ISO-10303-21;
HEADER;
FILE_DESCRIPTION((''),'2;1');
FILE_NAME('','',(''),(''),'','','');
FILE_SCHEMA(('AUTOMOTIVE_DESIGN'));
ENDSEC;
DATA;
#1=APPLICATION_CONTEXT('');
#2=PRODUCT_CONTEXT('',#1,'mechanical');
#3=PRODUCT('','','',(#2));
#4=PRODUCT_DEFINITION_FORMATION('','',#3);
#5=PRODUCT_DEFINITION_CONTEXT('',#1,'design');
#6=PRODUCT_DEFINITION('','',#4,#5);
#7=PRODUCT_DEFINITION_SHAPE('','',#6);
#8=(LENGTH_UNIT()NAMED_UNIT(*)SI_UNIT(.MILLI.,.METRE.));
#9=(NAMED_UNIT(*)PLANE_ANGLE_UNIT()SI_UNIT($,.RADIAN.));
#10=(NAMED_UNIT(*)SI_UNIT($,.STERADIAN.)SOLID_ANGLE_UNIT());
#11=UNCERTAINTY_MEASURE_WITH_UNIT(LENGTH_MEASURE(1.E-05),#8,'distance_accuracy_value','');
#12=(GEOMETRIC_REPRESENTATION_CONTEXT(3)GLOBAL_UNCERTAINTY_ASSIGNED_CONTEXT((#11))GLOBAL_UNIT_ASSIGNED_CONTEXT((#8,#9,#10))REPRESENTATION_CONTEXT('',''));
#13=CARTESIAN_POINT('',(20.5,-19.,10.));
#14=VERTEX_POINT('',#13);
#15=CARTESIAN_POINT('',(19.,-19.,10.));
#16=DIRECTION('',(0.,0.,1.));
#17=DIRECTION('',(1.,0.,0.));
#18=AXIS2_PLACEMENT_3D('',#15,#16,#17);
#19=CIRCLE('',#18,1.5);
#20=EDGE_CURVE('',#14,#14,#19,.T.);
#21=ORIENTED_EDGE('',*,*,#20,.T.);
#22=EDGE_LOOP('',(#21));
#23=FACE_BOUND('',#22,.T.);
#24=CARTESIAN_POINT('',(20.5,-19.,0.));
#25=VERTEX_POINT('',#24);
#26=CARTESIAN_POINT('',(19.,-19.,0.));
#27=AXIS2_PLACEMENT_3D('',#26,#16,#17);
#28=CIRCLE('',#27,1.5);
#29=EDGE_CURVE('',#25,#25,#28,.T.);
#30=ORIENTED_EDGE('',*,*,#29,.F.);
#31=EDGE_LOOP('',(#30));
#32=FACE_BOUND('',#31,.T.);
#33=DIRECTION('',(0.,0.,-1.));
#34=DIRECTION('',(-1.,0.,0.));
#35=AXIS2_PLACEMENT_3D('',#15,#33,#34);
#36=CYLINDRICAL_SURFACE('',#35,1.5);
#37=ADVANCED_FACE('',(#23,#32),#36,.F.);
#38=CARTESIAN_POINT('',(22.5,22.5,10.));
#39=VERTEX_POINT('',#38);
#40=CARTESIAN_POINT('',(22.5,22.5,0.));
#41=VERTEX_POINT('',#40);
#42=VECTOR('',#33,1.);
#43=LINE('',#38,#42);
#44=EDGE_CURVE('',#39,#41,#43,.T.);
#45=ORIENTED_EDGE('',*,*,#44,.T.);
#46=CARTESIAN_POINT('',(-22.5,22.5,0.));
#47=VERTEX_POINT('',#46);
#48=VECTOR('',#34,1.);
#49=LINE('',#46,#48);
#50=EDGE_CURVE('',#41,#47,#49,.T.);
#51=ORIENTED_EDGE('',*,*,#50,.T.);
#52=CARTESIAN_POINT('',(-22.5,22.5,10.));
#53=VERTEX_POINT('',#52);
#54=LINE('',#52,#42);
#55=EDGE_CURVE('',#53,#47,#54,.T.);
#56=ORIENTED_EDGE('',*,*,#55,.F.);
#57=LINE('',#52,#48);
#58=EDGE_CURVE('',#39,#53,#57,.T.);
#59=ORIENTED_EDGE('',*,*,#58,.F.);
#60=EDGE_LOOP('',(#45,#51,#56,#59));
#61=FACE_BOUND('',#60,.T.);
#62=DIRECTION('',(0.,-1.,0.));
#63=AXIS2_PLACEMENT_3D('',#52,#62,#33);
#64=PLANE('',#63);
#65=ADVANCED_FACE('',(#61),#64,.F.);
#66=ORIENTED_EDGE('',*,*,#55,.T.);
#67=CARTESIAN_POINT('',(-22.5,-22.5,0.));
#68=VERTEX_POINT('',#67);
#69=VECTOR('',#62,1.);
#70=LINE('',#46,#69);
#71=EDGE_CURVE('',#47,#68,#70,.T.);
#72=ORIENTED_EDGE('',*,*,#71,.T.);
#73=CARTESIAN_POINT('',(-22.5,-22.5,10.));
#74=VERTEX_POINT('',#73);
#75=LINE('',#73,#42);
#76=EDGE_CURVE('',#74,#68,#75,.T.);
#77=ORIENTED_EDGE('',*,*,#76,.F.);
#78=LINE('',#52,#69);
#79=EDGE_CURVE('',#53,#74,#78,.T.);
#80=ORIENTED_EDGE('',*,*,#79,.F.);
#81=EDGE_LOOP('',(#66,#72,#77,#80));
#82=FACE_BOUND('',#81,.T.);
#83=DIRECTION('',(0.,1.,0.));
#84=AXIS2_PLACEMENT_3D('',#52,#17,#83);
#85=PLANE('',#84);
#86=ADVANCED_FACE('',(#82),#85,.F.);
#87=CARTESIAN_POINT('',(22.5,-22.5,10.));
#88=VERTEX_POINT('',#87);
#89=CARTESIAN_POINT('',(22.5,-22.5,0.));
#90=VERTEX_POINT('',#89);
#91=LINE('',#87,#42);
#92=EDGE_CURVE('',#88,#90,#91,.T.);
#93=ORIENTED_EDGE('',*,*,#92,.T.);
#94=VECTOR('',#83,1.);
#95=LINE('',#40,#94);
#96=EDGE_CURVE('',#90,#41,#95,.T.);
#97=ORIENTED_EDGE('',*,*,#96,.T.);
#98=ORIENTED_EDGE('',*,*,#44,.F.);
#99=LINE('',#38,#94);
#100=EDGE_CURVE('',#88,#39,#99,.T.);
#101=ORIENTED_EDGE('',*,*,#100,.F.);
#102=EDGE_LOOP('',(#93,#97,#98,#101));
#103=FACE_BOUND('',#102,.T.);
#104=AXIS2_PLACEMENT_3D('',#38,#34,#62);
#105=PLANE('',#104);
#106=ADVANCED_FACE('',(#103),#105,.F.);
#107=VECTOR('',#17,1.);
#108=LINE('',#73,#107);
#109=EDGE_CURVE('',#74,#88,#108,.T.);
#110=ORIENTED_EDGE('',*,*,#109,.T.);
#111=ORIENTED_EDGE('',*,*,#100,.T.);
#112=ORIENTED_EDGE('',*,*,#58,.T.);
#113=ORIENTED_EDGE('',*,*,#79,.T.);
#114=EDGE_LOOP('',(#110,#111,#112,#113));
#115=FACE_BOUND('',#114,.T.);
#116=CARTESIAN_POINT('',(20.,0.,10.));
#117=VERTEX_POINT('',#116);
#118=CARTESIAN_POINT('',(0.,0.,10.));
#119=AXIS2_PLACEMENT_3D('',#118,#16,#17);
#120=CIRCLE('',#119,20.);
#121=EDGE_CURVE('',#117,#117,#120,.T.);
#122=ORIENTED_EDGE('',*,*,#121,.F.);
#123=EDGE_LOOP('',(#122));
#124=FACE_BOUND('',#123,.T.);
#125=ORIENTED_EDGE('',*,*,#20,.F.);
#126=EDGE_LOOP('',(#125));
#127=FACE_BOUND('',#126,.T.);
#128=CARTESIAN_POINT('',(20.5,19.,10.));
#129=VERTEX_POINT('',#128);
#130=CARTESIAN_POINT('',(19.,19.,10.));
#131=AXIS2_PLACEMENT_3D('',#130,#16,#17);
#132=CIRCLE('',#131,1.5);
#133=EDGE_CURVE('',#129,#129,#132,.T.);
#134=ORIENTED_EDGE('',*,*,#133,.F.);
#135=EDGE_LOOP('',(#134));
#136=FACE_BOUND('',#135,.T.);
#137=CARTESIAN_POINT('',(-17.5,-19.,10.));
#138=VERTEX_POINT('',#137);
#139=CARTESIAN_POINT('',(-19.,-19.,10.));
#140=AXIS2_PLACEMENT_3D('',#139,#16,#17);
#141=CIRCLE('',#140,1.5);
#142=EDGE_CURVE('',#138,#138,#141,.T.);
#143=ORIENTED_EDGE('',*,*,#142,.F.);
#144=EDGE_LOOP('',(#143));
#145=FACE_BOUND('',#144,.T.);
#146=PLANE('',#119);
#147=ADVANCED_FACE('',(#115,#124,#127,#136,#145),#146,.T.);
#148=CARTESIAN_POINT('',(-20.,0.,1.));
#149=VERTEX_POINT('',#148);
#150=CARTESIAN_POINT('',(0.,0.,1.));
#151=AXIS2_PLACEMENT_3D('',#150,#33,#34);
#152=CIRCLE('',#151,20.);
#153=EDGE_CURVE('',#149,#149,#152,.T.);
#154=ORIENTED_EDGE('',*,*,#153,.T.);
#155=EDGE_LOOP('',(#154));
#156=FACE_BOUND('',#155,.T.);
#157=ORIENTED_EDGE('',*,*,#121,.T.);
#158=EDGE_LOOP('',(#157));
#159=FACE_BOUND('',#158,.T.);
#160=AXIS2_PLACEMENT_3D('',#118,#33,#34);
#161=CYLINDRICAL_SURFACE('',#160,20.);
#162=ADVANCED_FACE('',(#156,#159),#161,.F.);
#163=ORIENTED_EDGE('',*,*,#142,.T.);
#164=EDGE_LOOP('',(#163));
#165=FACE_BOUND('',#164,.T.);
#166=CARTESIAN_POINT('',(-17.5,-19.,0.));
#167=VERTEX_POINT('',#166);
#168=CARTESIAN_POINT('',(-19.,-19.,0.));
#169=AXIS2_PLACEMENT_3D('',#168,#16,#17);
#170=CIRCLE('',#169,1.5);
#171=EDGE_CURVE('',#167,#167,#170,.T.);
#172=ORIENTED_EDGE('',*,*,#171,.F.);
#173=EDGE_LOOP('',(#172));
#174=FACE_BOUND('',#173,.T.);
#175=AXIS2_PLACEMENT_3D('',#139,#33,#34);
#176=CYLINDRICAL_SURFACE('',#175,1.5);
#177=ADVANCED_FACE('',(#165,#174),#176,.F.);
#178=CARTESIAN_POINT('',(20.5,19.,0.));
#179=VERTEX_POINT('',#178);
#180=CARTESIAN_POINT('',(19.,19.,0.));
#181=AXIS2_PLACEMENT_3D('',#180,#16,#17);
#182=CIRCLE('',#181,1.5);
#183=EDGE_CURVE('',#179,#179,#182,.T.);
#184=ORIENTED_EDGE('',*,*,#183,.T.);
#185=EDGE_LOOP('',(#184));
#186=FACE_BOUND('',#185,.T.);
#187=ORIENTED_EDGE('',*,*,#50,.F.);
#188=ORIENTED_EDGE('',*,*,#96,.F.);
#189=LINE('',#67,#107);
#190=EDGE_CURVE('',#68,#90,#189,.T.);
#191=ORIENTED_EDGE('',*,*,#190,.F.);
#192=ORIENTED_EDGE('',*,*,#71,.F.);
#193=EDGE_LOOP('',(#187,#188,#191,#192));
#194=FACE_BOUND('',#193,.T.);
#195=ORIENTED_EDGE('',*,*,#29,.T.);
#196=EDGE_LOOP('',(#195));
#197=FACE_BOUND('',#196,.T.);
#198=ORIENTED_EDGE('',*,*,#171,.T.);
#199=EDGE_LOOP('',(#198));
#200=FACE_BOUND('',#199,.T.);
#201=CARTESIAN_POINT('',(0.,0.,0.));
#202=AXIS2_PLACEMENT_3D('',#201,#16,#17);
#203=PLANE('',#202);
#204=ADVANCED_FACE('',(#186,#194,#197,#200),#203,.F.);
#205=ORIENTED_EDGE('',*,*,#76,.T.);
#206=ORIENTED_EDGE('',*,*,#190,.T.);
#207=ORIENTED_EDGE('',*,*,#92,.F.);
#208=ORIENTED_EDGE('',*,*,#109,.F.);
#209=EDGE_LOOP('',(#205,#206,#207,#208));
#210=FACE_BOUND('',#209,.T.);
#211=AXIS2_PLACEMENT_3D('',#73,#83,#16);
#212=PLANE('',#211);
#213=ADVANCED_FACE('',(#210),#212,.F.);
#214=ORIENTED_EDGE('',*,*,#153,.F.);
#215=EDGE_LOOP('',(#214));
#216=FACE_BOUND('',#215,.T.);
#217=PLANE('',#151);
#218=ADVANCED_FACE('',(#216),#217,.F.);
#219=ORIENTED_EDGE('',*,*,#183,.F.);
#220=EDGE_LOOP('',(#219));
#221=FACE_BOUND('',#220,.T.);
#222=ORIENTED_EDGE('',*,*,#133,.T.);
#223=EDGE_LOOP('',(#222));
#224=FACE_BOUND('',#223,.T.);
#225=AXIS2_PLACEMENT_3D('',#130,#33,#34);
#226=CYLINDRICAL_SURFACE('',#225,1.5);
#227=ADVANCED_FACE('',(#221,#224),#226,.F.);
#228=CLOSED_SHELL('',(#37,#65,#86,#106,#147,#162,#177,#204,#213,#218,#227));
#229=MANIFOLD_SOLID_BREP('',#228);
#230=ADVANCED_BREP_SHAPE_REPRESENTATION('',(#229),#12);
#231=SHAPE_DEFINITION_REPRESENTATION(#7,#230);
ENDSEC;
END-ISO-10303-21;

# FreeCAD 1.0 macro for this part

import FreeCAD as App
import Part
import Sketcher

V = App.Vector
Q = App.Units.Quantity

doc = App.newDocument("Part")
params = doc.addObject("Spreadsheet::Sheet", "Params")
for row, (alias, value) in enumerate([
    ("sketch1_diameter", "3 mm"),
    ("sketch1_diameter2", "40 mm"),
    ("sketch1_width", "45 mm"),
    ("pad1_length", "10 mm"),
    ("sketch2_diameter", "40 mm"),
    ("pad2_length", "1 mm"),
], start=1):
    params.set(f"A{row}", alias)
    params.set(f"B{row}", "=" + value)
    params.setAlias(f"B{row}", alias)

body = doc.addObject("PartDesign::Body", "Body")

# Sketch on XY plane
sketch1 = body.newObject("Sketcher::SketchObject", "Sketch")
sketch1.AttachmentSupport = (doc.getObject("XY_Plane"), [""])
sketch1.MapMode = "FlatFace"
sketch1.addGeometry(Part.LineSegment(V(-22.5, 22.5, 0), V(-22.5, -22.5, 0)), False)
sketch1.addGeometry(Part.LineSegment(V(-22.5, -22.5, 0), V(22.5, -22.5, 0)), False)
sketch1.addGeometry(Part.LineSegment(V(22.5, -22.5, 0), V(22.5, 22.5, 0)), False)
sketch1.addGeometry(Part.LineSegment(V(22.5, 22.5, 0), V(-22.5, 22.5, 0)), False)
sketch1.addGeometry(Part.Circle(V(-19, -19, 0), V(0, 0, 1), 1.5), False)
sketch1.addGeometry(Part.Circle(V(19, -19, 0), V(0, 0, 1), 1.5), False)
sketch1.addGeometry(Part.Circle(V(0, 0, 0), V(0, 0, 1), 20), False)
sketch1.addGeometry(Part.Circle(V(19, 19, 0), V(0, 0, 1), 1.5), False)
sketch1.addConstraint(Sketcher.Constraint("Coincident", 0, 2, 1, 1))
sketch1.addConstraint(Sketcher.Constraint("Coincident", 1, 2, 2, 1))
sketch1.addConstraint(Sketcher.Constraint("Coincident", 2, 2, 3, 1))
sketch1.addConstraint(Sketcher.Constraint("Coincident", 3, 2, 0, 1))
sketch1.addConstraint(Sketcher.Constraint("Vertical", 0))
sketch1.addConstraint(Sketcher.Constraint("Horizontal", 1))
sketch1.addConstraint(Sketcher.Constraint("Vertical", 2))
sketch1.addConstraint(Sketcher.Constraint("Horizontal", 3))
sketch1.addConstraint(Sketcher.Constraint("Coincident", 6, 3, -1, 1))
sketch1.addConstraint(Sketcher.Constraint("Equal", 4, 5))
sketch1.addConstraint(Sketcher.Constraint("Equal", 5, 7))
sketch1.addConstraint(Sketcher.Constraint("Symmetric", 4, 3, 7, 3, -1, 1))
sketch1.addConstraint(Sketcher.Constraint("Symmetric", 0, 2, 2, 2, -1, 1))
sketch1.addConstraint(Sketcher.Constraint("Symmetric", 4, 3, 5, 3, -2))
sketch1.addConstraint(Sketcher.Constraint("Equal", 3, 0))
sketch1.addConstraint(Sketcher.Constraint("Diameter", 4, Q("3 mm")))
sketch1.addConstraint(Sketcher.Constraint("Diameter", 6, Q("40 mm")))
sketch1.addConstraint(Sketcher.Constraint("DistanceX", 1, 1, 1, 2, Q("45 mm")))
sketch1.addConstraint(Sketcher.Constraint("DistanceX", 4, 3, -1, 1, Q("19 mm")))
sketch1.addConstraint(Sketcher.Constraint("DistanceY", 4, 3, -1, 1, Q("19 mm")))
sketch1.setExpression("Constraints[15]", "Params.sketch1_diameter")
sketch1.setExpression("Constraints[16]", "Params.sketch1_diameter2")
sketch1.setExpression("Constraints[17]", "Params.sketch1_width")
pad1 = body.newObject("PartDesign::Pad", "Pad")
pad1.Profile = sketch1
pad1.setExpression("Length", "Params.pad1_length")

# Sketch on XY plane
sketch2 = body.newObject("Sketcher::SketchObject", "Sketch001")
sketch2.AttachmentSupport = (doc.getObject("XY_Plane"), [""])
sketch2.MapMode = "FlatFace"
sketch2.addGeometry(Part.Circle(V(0, 0, 0), V(0, 0, 1), 20), False)
sketch2.addConstraint(Sketcher.Constraint("Coincident", 0, 3, -1, 1))
sketch2.addConstraint(Sketcher.Constraint("Diameter", 0, Q("40 mm")))
sketch2.setExpression("Constraints[1]", "Params.sketch2_diameter")
pad2 = body.newObject("PartDesign::Pad", "Pad001")
pad2.Profile = sketch2
pad2.setExpression("Length", "Params.pad2_length")

doc.recompute()
